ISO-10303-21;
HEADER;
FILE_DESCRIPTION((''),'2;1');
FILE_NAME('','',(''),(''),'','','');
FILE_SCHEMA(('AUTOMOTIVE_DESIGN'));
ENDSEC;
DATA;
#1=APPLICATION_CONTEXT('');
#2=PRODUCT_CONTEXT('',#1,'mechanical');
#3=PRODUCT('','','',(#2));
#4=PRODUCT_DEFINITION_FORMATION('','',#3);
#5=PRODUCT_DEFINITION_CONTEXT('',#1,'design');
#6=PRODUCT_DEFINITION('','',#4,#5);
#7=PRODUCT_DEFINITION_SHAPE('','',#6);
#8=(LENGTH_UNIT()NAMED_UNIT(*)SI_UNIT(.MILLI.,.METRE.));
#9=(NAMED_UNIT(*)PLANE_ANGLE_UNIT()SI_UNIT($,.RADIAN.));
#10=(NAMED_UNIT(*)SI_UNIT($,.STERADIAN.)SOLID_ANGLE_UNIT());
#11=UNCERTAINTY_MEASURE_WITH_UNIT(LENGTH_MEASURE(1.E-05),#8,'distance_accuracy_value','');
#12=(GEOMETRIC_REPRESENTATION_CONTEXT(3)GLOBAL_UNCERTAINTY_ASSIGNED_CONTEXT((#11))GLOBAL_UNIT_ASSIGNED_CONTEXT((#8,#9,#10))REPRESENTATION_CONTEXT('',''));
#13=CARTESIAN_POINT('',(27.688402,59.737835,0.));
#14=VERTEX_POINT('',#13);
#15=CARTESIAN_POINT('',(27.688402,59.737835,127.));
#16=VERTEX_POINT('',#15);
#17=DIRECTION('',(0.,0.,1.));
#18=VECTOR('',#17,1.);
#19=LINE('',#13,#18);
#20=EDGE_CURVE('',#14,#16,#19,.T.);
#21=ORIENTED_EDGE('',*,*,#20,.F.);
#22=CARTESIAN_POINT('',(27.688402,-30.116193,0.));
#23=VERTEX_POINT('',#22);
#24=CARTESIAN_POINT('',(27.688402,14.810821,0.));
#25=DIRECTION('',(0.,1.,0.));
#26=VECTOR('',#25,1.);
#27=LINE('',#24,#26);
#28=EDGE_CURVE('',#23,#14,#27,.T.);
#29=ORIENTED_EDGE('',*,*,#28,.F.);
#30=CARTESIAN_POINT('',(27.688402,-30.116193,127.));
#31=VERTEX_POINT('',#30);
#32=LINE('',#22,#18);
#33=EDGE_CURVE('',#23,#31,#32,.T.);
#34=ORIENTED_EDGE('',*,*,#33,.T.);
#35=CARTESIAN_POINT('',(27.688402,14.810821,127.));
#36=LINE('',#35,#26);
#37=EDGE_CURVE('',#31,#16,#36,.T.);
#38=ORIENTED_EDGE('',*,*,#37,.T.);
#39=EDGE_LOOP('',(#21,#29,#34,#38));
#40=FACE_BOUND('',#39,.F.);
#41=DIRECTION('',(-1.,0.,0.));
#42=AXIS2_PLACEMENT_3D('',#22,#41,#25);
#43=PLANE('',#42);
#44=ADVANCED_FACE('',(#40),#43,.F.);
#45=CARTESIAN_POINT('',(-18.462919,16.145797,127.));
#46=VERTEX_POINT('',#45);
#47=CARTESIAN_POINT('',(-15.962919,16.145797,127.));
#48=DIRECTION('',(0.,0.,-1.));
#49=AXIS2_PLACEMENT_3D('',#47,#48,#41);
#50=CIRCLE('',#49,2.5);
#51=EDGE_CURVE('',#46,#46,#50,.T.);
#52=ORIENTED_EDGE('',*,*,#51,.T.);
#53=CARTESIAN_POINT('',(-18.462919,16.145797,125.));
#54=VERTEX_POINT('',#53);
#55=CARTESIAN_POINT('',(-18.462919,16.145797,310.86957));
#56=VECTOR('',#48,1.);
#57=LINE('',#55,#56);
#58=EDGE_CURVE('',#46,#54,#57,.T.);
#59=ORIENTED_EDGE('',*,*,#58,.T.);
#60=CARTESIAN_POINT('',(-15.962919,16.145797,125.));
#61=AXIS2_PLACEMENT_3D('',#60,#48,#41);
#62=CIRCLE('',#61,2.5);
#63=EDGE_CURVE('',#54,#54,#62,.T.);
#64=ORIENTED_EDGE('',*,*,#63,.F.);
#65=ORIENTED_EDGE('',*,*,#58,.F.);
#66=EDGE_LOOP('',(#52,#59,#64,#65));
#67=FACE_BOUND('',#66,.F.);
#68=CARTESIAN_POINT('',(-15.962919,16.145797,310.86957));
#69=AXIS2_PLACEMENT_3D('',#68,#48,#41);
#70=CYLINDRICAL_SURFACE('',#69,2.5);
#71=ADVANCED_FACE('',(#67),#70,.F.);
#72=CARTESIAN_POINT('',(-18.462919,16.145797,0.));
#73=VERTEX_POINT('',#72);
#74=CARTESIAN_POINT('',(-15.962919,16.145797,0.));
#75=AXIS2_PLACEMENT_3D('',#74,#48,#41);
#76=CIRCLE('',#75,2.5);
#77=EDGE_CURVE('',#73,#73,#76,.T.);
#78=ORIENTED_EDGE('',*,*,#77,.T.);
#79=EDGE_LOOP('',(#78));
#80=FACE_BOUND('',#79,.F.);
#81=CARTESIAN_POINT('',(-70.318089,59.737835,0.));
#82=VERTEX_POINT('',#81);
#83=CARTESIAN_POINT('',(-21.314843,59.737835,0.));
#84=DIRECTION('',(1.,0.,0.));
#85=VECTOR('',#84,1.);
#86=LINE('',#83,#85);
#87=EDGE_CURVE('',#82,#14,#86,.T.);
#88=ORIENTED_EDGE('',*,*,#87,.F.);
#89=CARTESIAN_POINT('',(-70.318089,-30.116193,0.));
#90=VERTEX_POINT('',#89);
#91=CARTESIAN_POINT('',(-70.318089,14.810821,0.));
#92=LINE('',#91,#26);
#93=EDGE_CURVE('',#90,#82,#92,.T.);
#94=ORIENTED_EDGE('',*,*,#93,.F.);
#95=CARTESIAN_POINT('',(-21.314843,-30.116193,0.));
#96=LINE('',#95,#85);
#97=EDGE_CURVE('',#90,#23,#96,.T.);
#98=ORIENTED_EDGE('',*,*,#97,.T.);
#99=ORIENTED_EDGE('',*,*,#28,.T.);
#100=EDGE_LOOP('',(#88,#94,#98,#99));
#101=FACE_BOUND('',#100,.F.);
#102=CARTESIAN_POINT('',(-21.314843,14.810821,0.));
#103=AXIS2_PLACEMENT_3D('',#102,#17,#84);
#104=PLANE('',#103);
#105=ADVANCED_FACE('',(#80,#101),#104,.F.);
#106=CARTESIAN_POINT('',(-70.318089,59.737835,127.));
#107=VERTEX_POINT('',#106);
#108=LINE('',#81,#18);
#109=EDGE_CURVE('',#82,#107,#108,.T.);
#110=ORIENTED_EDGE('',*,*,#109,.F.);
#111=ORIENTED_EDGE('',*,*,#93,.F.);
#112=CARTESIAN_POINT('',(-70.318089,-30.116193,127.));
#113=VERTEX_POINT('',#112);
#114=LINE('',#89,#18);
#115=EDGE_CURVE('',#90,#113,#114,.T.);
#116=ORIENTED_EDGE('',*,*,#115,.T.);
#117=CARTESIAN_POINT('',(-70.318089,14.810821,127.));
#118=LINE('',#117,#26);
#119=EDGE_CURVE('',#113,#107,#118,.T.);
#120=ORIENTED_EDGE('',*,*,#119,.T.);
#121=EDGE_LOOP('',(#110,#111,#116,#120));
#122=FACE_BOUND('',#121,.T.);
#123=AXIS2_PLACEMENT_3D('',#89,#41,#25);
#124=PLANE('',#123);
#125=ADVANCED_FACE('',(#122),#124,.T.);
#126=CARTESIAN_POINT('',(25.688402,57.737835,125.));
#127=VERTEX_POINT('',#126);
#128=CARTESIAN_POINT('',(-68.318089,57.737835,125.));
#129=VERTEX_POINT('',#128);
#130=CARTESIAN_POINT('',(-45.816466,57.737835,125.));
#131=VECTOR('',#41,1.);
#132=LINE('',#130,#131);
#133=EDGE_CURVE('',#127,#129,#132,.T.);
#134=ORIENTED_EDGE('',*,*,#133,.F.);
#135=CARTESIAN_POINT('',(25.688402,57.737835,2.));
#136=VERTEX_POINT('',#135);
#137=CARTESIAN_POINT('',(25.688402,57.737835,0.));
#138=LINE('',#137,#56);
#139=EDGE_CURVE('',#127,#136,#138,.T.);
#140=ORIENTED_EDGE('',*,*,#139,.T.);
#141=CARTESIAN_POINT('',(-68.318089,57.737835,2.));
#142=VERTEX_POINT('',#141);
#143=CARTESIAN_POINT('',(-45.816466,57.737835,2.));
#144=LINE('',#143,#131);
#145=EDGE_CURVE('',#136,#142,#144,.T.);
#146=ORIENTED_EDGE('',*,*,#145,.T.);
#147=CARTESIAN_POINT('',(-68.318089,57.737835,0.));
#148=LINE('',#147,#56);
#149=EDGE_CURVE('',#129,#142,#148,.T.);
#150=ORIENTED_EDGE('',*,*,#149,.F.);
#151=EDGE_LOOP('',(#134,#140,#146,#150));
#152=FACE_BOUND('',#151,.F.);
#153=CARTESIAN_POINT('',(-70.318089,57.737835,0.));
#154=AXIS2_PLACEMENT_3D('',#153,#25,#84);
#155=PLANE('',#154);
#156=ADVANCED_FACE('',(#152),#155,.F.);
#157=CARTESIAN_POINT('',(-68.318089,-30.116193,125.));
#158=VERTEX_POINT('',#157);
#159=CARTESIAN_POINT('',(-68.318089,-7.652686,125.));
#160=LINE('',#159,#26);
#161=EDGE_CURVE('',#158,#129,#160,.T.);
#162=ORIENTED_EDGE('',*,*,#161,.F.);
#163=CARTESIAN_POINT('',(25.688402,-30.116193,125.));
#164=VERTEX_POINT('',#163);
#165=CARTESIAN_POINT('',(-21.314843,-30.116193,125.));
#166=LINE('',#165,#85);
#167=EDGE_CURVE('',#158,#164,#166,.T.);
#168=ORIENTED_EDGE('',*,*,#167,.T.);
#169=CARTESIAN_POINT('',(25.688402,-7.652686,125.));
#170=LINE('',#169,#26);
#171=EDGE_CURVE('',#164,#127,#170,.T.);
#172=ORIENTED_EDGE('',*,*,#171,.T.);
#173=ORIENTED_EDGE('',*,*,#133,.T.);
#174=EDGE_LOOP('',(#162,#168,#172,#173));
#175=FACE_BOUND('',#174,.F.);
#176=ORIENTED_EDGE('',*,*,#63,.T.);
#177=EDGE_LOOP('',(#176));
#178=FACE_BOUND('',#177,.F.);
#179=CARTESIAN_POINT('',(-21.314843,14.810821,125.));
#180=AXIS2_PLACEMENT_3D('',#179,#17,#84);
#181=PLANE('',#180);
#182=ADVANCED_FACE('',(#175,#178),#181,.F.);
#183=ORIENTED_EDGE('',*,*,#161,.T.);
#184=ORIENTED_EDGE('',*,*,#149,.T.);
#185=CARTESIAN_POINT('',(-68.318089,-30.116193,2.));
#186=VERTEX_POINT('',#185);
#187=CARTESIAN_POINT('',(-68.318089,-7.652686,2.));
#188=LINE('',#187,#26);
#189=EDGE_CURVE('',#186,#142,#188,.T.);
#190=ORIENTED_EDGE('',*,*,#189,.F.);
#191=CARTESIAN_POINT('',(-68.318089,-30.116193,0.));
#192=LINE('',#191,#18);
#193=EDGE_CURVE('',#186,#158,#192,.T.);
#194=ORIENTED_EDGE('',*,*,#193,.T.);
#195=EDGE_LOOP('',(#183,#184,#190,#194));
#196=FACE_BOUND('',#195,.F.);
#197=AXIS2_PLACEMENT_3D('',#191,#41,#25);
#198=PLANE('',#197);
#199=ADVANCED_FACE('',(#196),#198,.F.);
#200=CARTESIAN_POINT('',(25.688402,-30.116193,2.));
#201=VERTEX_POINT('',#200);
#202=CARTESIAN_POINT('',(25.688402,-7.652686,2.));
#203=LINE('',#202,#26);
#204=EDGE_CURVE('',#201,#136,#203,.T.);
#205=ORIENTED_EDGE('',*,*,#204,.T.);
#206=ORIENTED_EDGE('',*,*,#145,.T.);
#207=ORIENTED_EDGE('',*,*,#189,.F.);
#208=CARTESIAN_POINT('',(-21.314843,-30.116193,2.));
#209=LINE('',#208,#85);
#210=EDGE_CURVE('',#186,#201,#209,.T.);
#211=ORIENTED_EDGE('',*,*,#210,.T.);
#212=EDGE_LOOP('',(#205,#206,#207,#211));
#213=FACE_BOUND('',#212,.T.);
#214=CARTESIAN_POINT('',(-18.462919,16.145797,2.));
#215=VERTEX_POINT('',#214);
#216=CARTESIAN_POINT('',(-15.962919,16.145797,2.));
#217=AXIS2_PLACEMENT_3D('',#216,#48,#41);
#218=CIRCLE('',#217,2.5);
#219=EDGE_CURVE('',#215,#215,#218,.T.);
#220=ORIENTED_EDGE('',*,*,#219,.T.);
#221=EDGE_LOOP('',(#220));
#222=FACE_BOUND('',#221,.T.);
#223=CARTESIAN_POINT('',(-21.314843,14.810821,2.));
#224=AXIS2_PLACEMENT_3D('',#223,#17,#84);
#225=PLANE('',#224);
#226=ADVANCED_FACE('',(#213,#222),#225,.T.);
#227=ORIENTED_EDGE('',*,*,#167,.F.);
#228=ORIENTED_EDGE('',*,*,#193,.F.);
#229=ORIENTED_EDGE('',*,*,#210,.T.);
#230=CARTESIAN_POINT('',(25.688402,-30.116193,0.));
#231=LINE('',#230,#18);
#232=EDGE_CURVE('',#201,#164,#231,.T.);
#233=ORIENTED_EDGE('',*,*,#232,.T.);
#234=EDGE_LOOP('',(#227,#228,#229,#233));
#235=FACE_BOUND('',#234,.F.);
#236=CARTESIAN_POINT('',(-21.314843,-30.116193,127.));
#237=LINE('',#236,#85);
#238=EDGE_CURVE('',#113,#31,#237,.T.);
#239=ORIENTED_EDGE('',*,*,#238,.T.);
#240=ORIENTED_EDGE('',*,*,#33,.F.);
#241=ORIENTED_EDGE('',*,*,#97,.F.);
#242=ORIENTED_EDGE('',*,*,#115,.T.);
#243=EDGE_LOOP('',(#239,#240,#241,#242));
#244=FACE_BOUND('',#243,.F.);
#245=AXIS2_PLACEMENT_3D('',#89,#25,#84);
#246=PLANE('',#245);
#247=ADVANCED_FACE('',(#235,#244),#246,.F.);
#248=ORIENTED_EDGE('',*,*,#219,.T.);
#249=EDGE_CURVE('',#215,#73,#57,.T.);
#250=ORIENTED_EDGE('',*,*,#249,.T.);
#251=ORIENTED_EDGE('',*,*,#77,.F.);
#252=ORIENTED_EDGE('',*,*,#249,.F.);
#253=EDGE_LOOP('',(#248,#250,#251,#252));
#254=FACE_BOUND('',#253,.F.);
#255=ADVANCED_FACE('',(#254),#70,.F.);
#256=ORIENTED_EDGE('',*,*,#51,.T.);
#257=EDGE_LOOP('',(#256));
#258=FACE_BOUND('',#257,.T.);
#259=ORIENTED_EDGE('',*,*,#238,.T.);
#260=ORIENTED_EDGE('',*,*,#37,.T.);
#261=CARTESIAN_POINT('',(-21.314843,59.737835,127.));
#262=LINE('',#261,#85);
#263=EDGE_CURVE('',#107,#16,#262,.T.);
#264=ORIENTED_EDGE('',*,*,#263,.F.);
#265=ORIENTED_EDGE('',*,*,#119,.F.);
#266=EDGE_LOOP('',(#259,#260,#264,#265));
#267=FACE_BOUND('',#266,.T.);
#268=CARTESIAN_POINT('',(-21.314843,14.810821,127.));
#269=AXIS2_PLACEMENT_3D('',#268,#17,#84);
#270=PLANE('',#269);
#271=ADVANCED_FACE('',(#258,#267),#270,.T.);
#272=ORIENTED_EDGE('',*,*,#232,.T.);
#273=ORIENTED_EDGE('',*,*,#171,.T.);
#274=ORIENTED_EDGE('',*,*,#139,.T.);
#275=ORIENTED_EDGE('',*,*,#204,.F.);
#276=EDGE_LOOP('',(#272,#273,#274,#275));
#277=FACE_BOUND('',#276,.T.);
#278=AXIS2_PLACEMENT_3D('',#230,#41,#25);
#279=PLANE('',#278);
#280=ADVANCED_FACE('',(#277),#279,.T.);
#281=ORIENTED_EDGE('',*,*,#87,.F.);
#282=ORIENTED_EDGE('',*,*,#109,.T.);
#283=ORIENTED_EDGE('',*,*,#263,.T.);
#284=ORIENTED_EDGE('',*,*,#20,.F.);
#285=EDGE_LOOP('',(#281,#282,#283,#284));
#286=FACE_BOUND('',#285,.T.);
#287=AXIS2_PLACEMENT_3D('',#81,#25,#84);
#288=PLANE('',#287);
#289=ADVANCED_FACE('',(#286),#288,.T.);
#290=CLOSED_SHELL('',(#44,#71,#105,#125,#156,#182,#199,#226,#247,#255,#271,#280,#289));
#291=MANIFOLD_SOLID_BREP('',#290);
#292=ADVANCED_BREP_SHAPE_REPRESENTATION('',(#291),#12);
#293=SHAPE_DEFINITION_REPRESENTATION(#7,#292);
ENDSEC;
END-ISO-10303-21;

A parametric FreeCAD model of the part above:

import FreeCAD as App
import Part
import Sketcher

V = App.Vector
Q = App.Units.Quantity


def faces_at(feature, points):
    """Names of the faces that lie closest to the given points."""
    faces = feature.Shape.Faces
    near = lambda p: min(range(len(faces)), key=lambda i: faces[i].distToShape(Part.Vertex(*p))[0])
    return sorted({f"Face{near(p) + 1}" for p in points})


def add_polygon(sketch, points):
    """Adds a closed chain of lines whose ends are joined by coincident constraints."""
    first, n = sketch.GeometryCount, len(points)
    for a, b in zip(points, points[1:] + points[:1]):
        sketch.addGeometry(Part.LineSegment(App.Vector(*a, 0), App.Vector(*b, 0)), False)
    for i in range(n):
        sketch.addConstraint(Sketcher.Constraint("Coincident", first + i, 2, first + (i + 1) % n, 1))

doc = App.newDocument("Part")
body = doc.addObject("PartDesign::Body", "Body")

# Sketch on XY plane
sketch1 = body.newObject("Sketcher::SketchObject", "Sketch")
sketch1.AttachmentSupport = (doc.getObject("XY_Plane"), [""])
sketch1.MapMode = "FlatFace"
add_polygon(sketch1, [(-70, 60), (-70, -30), (28, -30), (28, 60)])  # lines 0-3
sketch1.addConstraint([
    Sketcher.Constraint("Vertical", 0),
    Sketcher.Constraint("Horizontal", 1),
    Sketcher.Constraint("Vertical", 2),
    Sketcher.Constraint("Horizontal", 3),
    Sketcher.Constraint("DistanceX", 1, 1, 1, 2, Q("98.006491 mm")),
    Sketcher.Constraint("DistanceY", 0, 2, 0, 1, Q("89.854028 mm")),
    Sketcher.Constraint("DistanceX", 0, 2, -1, 1, Q("70.318089 mm")),
    Sketcher.Constraint("DistanceY", 0, 2, -1, 1, Q("30.116193 mm")),
])
pad1 = body.newObject("PartDesign::Pad", "Pad")
pad1.Profile = sketch1
pad1.Length = 127

# Sketch on XY plane
sketch2 = body.newObject("Sketcher::SketchObject", "Sketch001")
sketch2.AttachmentSupport = (doc.getObject("XY_Plane"), [""])
sketch2.MapMode = "FlatFace"
sketch2.AttachmentOffset = App.Placement(V(0, 0, 127), App.Rotation())
add_polygon(sketch2, [(-69, 59), (-69, -29), (27, -29), (27, 59)])  # lines 0-3
sketch2.addConstraint([
    Sketcher.Constraint("Vertical", 0),
    Sketcher.Constraint("Horizontal", 1),
    Sketcher.Constraint("Vertical", 2),
    Sketcher.Constraint("Horizontal", 3),
    Sketcher.Constraint("DistanceX", 1, 1, 1, 2, Q("96.006491 mm")),
    Sketcher.Constraint("DistanceY", 0, 2, 0, 1, Q("87.854028 mm")),
    Sketcher.Constraint("DistanceX", 0, 2, -1, 1, Q("69.318089 mm")),
    Sketcher.Constraint("DistanceY", 0, 2, -1, 1, Q("29.116193 mm")),
])
pad2 = body.newObject("PartDesign::Pad", "Pad001")
pad2.Profile = sketch2
pad2.Length = 84.733695
pad2.Reversed = True
doc.recompute()

thickness = body.newObject("PartDesign::Thickness", "Thickness")
thickness.Base = (pad2, faces_at(pad2, [(-21.315, -30.116, 63.5)]))
thickness.Value = 2
thickness.Reversed = True
thickness.Join = "Arc"

# Sketch on XY plane
sketch3 = body.newObject("Sketcher::SketchObject", "Sketch002")
sketch3.AttachmentSupport = (doc.getObject("XY_Plane"), [""])
sketch3.MapMode = "FlatFace"
sketch3.AttachmentOffset = App.Placement(V(0, 0, 127), App.Rotation())
sketch3.addGeometry(Part.Circle(V(-16, 16.1, 0), V(0, 0, 1), 2.5), False)
sketch3.addConstraint([
    Sketcher.Constraint("Diameter", 0, Q("5 mm")),
    Sketcher.Constraint("DistanceX", 0, 3, -1, 1, Q("15.962919 mm")),
    Sketcher.Constraint("DistanceY", -1, 1, 0, 3, Q("16.145797 mm")),
])
doc.recompute()
hole = body.newObject("PartDesign::Hole", "Hole")
hole.Profile = sketch3
hole.ThreadType = "None"
hole.Diameter = 5
hole.DepthType = "ThroughAll"

doc.recompute()
